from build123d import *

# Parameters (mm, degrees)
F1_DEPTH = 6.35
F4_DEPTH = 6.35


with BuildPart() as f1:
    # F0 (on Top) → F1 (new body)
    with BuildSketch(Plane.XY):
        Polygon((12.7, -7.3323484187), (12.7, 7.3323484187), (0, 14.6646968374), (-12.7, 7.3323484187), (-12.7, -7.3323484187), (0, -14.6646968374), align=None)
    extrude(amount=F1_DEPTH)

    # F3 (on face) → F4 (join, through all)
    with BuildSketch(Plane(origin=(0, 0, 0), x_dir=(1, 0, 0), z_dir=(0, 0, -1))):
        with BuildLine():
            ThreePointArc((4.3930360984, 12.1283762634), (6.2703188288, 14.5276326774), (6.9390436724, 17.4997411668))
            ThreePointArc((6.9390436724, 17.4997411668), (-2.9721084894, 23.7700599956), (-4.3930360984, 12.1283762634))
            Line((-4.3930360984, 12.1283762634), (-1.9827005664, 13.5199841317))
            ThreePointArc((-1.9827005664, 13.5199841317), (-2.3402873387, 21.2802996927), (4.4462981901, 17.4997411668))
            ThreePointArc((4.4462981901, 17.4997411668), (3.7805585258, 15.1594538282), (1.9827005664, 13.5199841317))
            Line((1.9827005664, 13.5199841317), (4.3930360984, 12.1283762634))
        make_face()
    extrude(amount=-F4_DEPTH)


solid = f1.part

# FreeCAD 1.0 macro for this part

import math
import FreeCAD as App
import Part
import Sketcher
Q = App.Units.Quantity

doc = App.newDocument("Part")
body = doc.addObject("PartDesign::Body", "Body")

sketch1 = body.newObject("Sketcher::SketchObject", "Sketch")
sketch1.AttachmentSupport = (doc.getObject("XY_Plane"), [""])
sketch1.MapMode = "FlatFace"
sketch1.addGeometry([
    Part.LineSegment(App.Vector(13, -7, 0), App.Vector(13, 7, 0)),
    Part.LineSegment(App.Vector(13, 7, 0), App.Vector(0, 15, 0)),
    Part.LineSegment(App.Vector(0, 15, 0), App.Vector(-13, 7, 0)),
    Part.LineSegment(App.Vector(-13, 7, 0), App.Vector(-13, -7, 0)),
    Part.LineSegment(App.Vector(-13, -7, 0), App.Vector(0, -15, 0)),
    Part.LineSegment(App.Vector(0, -15, 0), App.Vector(13, -7, 0)),
], False)
sketch1.addConstraint([
    Sketcher.Constraint("Coincident", 0, 2, 1, 1),
    Sketcher.Constraint("Coincident", 1, 2, 2, 1),
    Sketcher.Constraint("Coincident", 2, 2, 3, 1),
    Sketcher.Constraint("Coincident", 3, 2, 4, 1),
    Sketcher.Constraint("Coincident", 4, 2, 5, 1),
    Sketcher.Constraint("Coincident", 5, 2, 0, 1),
    Sketcher.Constraint("Vertical", 0),
    Sketcher.Constraint("Vertical", 3),
    Sketcher.Constraint("Symmetric", 0, 2, 3, 2, -1, 1),
    Sketcher.Constraint("Symmetric", 1, 2, 4, 2, -1, 1),
    Sketcher.Constraint("PointOnObject", 1, 2, -2),
    Sketcher.Constraint("Parallel", 2, 5),
    Sketcher.Constraint("Horizontal", 0, 2, 2, 2),
    Sketcher.Constraint("Angle", 1, Q("150 deg")),
    Sketcher.Constraint("DistanceX", 2, 2, 0, 2, Q("1 in")),
    Sketcher.Constraint("DistanceY", 0, 1, 0, 2, Q("14.664697 mm")),
])
pad1 = body.newObject("PartDesign::Pad", "Pad")
pad1.Profile = sketch1
pad1.Length = Q("0.25 in")

sketch2 = body.newObject("Sketcher::SketchObject", "Sketch001")
sketch2.AttachmentSupport = (doc.getObject("XY_Plane"), [""])
sketch2.MapMode = "FlatFace"
sketch2.addGeometry([
    Part.ArcOfCircle(Part.Circle(App.Vector(0, -17.5, 0), App.Vector(0, 0, 1), 6.9), math.radians(0), math.radians(51)),
    Part.ArcOfCircle(Part.Circle(App.Vector(0, -17.5, 0), App.Vector(0, 0, 1), 6.9), math.radians(129), math.radians(360)),
    Part.LineSegment(App.Vector(-4.4, -12.1, 0), App.Vector(-2, -13.5, 0)),
    Part.ArcOfCircle(Part.Circle(App.Vector(0, -17.5, 0), App.Vector(0, 0, 1), 4.4), math.radians(116), math.radians(360)),
    Part.ArcOfCircle(Part.Circle(App.Vector(0, -17.5, 0), App.Vector(0, 0, 1), 4.4), math.radians(0), math.radians(64)),
    Part.LineSegment(App.Vector(2, -13.5, 0), App.Vector(4.4, -12.1, 0)),
], False)
sketch2.addConstraint([
    Sketcher.Constraint("Tangent", 0, 1, 1, 2),
    Sketcher.Constraint("Coincident", 1, 1, 2, 1),
    Sketcher.Constraint("Coincident", 2, 2, 3, 1),
    Sketcher.Constraint("Tangent", 3, 2, 4, 1),
    Sketcher.Constraint("Coincident", 4, 2, 5, 1),
    Sketcher.Constraint("Coincident", 5, 2, 0, 2),
    Sketcher.Constraint("Coincident", 3, 3, 0, 3),
    Sketcher.Constraint("Equal", 0, 1),
    Sketcher.Constraint("Equal", 3, 4),
    Sketcher.Constraint("Symmetric", 2, 2, 4, 2, -2),
    Sketcher.Constraint("Horizontal", 4, 3, 0, 1),
    Sketcher.Constraint("Horizontal", 0, 1, 3, 2),
    Sketcher.Constraint("Horizontal", 1, 1, 5, 2),
    Sketcher.Constraint("Angle", 2, Q("-30 deg")),
    Sketcher.Constraint("Radius", 3, Q("4.446298 mm")),
    Sketcher.Constraint("Radius", 0, Q("6.939044 mm")),
    Sketcher.Constraint("DistanceX", 2, 2, -1, 1, Q("1.982701 mm")),
    Sketcher.Constraint("DistanceY", 0, 3, -1, 1, Q("17.499741 mm")),
])
pad2 = body.newObject("PartDesign::Pad", "Pad001")
pad2.Profile = sketch2
pad2.Length = Q("0.25 in")

doc.recompute()
